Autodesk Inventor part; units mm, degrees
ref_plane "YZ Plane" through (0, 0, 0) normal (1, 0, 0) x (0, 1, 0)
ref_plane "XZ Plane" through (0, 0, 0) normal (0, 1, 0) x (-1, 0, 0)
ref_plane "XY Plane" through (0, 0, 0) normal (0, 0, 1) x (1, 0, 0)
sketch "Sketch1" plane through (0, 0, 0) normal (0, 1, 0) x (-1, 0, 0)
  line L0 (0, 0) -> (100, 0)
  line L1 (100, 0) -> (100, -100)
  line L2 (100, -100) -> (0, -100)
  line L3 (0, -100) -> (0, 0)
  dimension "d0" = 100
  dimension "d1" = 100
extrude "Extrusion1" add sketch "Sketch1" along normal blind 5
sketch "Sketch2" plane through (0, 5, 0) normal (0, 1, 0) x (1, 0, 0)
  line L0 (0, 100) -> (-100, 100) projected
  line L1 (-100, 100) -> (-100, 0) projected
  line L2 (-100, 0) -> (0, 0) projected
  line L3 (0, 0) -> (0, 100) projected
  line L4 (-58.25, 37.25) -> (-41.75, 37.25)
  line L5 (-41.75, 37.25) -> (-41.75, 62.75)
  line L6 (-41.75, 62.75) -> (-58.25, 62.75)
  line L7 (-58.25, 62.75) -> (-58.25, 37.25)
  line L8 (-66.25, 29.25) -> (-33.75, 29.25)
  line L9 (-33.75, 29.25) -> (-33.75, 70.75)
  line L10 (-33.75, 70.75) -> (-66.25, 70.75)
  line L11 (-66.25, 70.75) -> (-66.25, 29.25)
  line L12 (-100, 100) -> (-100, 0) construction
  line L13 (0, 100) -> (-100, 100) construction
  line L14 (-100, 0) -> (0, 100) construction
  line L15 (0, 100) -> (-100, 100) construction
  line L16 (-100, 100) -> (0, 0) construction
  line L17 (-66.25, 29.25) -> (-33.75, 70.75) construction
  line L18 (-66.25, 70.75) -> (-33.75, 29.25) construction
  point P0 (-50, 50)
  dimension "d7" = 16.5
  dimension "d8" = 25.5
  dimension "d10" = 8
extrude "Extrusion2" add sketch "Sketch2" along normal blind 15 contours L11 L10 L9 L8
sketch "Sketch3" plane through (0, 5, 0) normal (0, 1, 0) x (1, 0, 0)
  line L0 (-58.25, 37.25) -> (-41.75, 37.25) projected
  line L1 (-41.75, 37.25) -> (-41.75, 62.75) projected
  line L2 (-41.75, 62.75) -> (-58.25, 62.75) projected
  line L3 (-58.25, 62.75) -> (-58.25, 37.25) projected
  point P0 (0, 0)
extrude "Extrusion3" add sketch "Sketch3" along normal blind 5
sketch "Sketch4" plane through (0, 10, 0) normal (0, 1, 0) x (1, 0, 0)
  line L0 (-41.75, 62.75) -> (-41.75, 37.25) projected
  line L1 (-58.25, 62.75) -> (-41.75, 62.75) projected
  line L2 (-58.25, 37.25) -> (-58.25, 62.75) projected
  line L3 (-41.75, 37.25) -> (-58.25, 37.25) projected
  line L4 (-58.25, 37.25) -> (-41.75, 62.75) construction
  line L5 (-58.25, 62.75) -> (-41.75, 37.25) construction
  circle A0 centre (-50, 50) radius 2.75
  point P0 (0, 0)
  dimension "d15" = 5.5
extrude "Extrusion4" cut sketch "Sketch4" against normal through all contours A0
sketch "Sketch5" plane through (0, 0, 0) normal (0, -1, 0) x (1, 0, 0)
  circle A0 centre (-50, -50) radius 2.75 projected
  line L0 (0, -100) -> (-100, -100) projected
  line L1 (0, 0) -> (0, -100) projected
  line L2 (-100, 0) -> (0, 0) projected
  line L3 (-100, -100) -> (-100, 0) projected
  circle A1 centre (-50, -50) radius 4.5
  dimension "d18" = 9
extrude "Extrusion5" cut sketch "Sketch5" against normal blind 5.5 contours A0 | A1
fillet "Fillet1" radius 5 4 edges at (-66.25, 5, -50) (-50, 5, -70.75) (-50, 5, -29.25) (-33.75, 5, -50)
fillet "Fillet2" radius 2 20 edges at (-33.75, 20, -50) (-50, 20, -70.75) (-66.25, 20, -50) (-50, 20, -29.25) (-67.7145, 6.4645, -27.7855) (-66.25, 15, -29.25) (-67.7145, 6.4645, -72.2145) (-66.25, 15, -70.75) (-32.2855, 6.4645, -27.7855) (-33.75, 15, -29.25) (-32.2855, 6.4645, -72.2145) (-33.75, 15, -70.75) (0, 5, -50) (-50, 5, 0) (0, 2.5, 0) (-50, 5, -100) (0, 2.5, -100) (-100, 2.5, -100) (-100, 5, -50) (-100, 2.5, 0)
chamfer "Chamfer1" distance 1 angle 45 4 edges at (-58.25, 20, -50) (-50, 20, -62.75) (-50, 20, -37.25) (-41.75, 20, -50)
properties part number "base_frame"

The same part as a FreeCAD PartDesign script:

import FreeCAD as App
import Part
import Sketcher

V = App.Vector
Q = App.Units.Quantity


def edges_at(feature, points):
    """Names of the edges that pass closest to the given points."""
    edges = feature.Shape.Edges
    near = lambda p: min(range(len(edges)), key=lambda i: edges[i].distToShape(Part.Vertex(*p))[0])
    return sorted({f"Edge{near(p) + 1}" for p in points})


def add_polygon(sketch, points):
    """Adds a closed chain of lines whose ends are joined by coincident constraints."""
    first, n = sketch.GeometryCount, len(points)
    for a, b in zip(points, points[1:] + points[:1]):
        sketch.addGeometry(Part.LineSegment(App.Vector(*a, 0), App.Vector(*b, 0)), False)
    for i in range(n):
        sketch.addConstraint(Sketcher.Constraint("Coincident", first + i, 2, first + (i + 1) % n, 1))

doc = App.newDocument("Part")
body = doc.addObject("PartDesign::Body", "Body")

sketch1 = body.newObject("Sketcher::SketchObject", "Sketch")
sketch1.AttachmentSupport = (doc.getObject("XZ_Plane"), [""])
sketch1.MapMode = "FlatFace"
add_polygon(sketch1, [(-100, 0), (0, 0), (0, -100), (-100, -100)])
sketch1.addConstraint([
    Sketcher.Constraint("Horizontal", 0),
    Sketcher.Constraint("Vertical", 1),
    Sketcher.Constraint("Horizontal", 2),
    Sketcher.Constraint("Vertical", 3),
    Sketcher.Constraint("Coincident", 0, 2, -1, 1),
    Sketcher.Constraint("Equal", 2, 1),
    Sketcher.Constraint("DistanceX", 0, 1, 0, 2, Q("100 mm")),
])
pad1 = body.newObject("PartDesign::Pad", "Pad")
pad1.Profile = sketch1
pad1.Length = 5
pad1.Reversed = True

sketch2 = body.newObject("Sketcher::SketchObject", "Sketch001")
sketch2.AttachmentSupport = (doc.getObject("XZ_Plane"), [""])
sketch2.MapMode = "FlatFace"
sketch2.AttachmentOffset = App.Placement(V(0, 0, -5), App.Rotation())
add_polygon(sketch2, [(-66, -71), (-66, -29), (-34, -29), (-34, -71)])
add_polygon(sketch2, [(-42, -37), (-58, -37), (-58, -63), (-42, -63)])
sketch2.addConstraint([
    Sketcher.Constraint("Vertical", 0),
    Sketcher.Constraint("Horizontal", 1),
    Sketcher.Constraint("Vertical", 2),
    Sketcher.Constraint("Horizontal", 3),
    Sketcher.Constraint("Horizontal", 4),
    Sketcher.Constraint("Vertical", 5),
    Sketcher.Constraint("Horizontal", 6),
    Sketcher.Constraint("Vertical", 7),
    Sketcher.Constraint("DistanceX", 4, 2, 4, 1, Q("16.5 mm")),
    Sketcher.Constraint("DistanceY", 5, 2, 5, 1, Q("25.5 mm")),
    Sketcher.Constraint("DistanceX", 0, 2, 4, 2, Q("8 mm")),
    Sketcher.Constraint("DistanceY", 4, 2, 0, 2, Q("8 mm")),
    Sketcher.Constraint("DistanceY", 3, 2, 5, 2, Q("8 mm")),
    Sketcher.Constraint("DistanceX", 6, 2, 2, 2, Q("8 mm")),
    Sketcher.Constraint("DistanceX", 0, 2, -1, 1, Q("66.25 mm")),
    Sketcher.Constraint("DistanceY", 0, 2, -1, 1, Q("29.25 mm")),
])
pad2 = body.newObject("PartDesign::Pad", "Pad001")
pad2.Profile = sketch2
pad2.Length = 15
pad2.Reversed = True

sketch3 = body.newObject("Sketcher::SketchObject", "Sketch002")
sketch3.AttachmentSupport = (doc.getObject("XZ_Plane"), [""])
sketch3.MapMode = "FlatFace"
sketch3.AttachmentOffset = App.Placement(V(0, 0, -5), App.Rotation())
add_polygon(sketch3, [(-58, -63), (-58, -37), (-42, -37), (-42, -63)])
sketch3.addConstraint([
    Sketcher.Constraint("Vertical", 0),
    Sketcher.Constraint("Horizontal", 1),
    Sketcher.Constraint("Vertical", 2),
    Sketcher.Constraint("Horizontal", 3),
    Sketcher.Constraint("DistanceX", 1, 1, 1, 2, Q("16.5 mm")),
    Sketcher.Constraint("DistanceY", 0, 1, 0, 2, Q("25.5 mm")),
    Sketcher.Constraint("DistanceX", 0, 2, -1, 1, Q("58.25 mm")),
    Sketcher.Constraint("DistanceY", 0, 2, -1, 1, Q("37.25 mm")),
])
pad3 = body.newObject("PartDesign::Pad", "Pad002")
pad3.Profile = sketch3
pad3.Length = 5
pad3.Reversed = True

sketch4 = body.newObject("Sketcher::SketchObject", "Sketch003")
sketch4.AttachmentSupport = (doc.getObject("XZ_Plane"), [""])
sketch4.MapMode = "FlatFace"
sketch4.AttachmentOffset = App.Placement(V(0, 0, -10), App.Rotation())
sketch4.addGeometry(Part.Circle(V(-50, -50, 0), V(0, 0, 1), 2.8), False)
sketch4.addConstraint([
    Sketcher.Constraint("Diameter", 0, Q("5.5 mm")),
    Sketcher.Constraint("DistanceX", 0, 3, -1, 1, Q("50 mm")),
    Sketcher.Constraint("DistanceY", 0, 3, -1, 1, Q("50 mm")),
])
pocket1 = body.newObject("PartDesign::Pocket", "Pocket")
pocket1.Profile = sketch4
pocket1.Type = "ThroughAll"
pocket1.Reversed = True

sketch5 = body.newObject("Sketcher::SketchObject", "Sketch004")
sketch5.AttachmentSupport = (doc.getObject("XZ_Plane"), [""])
sketch5.MapMode = "FlatFace"
sketch5.addGeometry(Part.Circle(V(-50, -50, 0), V(0, 0, 1), 4.5), False)
sketch5.addConstraint([
    Sketcher.Constraint("Diameter", 0, Q("9 mm")),
    Sketcher.Constraint("DistanceX", 0, 3, -1, 1, Q("50 mm")),
    Sketcher.Constraint("DistanceY", 0, 3, -1, 1, Q("50 mm")),
])
pocket2 = body.newObject("PartDesign::Pocket", "Pocket001")
pocket2.Profile = sketch5
pocket2.Length = 5.5
doc.recompute()

fillet = body.newObject("PartDesign::Fillet", "Fillet")
fillet.Base = (pocket2, edges_at(pocket2, [
    (-66.25, 5, -50),
    (-50, 5, -70.75),
    (-50, 5, -29.25),
    (-33.75, 5, -50),
]))
fillet.Radius = 5
doc.recompute()

fillet2 = body.newObject("PartDesign::Fillet", "Fillet001")
fillet2.Base = (fillet, edges_at(fillet, [
    (-33.75, 20, -50),
    (-50, 20, -70.75),
    (-66.25, 20, -50),
    (-50, 20, -29.25),
    (-67.715, 6.465, -27.785),
    (-66.25, 15, -29.25),
    (-67.715, 6.465, -72.215),
    (-66.25, 15, -70.75),
    (-32.285, 6.465, -27.785),
    (-33.75, 15, -29.25),
    (-32.285, 6.465, -72.215),
    (-33.75, 15, -70.75),
    (0, 5, -50),
    (-50, 5, 0),
    (0, 2.5, 0),
    (-50, 5, -100),
    (0, 2.5, -100),
    (-100, 2.5, -100),
    (-100, 5, -50),
    (-100, 2.5, 0),
]))
fillet2.Radius = 2
doc.recompute()

chamfer = body.newObject("PartDesign::Chamfer", "Chamfer")
chamfer.Base = (fillet2, edges_at(fillet2, [
    (-58.25, 20, -50),
    (-50, 20, -62.75),
    (-50, 20, -37.25),
    (-41.75, 20, -50),
]))
chamfer.Size = 1

doc.recompute()
